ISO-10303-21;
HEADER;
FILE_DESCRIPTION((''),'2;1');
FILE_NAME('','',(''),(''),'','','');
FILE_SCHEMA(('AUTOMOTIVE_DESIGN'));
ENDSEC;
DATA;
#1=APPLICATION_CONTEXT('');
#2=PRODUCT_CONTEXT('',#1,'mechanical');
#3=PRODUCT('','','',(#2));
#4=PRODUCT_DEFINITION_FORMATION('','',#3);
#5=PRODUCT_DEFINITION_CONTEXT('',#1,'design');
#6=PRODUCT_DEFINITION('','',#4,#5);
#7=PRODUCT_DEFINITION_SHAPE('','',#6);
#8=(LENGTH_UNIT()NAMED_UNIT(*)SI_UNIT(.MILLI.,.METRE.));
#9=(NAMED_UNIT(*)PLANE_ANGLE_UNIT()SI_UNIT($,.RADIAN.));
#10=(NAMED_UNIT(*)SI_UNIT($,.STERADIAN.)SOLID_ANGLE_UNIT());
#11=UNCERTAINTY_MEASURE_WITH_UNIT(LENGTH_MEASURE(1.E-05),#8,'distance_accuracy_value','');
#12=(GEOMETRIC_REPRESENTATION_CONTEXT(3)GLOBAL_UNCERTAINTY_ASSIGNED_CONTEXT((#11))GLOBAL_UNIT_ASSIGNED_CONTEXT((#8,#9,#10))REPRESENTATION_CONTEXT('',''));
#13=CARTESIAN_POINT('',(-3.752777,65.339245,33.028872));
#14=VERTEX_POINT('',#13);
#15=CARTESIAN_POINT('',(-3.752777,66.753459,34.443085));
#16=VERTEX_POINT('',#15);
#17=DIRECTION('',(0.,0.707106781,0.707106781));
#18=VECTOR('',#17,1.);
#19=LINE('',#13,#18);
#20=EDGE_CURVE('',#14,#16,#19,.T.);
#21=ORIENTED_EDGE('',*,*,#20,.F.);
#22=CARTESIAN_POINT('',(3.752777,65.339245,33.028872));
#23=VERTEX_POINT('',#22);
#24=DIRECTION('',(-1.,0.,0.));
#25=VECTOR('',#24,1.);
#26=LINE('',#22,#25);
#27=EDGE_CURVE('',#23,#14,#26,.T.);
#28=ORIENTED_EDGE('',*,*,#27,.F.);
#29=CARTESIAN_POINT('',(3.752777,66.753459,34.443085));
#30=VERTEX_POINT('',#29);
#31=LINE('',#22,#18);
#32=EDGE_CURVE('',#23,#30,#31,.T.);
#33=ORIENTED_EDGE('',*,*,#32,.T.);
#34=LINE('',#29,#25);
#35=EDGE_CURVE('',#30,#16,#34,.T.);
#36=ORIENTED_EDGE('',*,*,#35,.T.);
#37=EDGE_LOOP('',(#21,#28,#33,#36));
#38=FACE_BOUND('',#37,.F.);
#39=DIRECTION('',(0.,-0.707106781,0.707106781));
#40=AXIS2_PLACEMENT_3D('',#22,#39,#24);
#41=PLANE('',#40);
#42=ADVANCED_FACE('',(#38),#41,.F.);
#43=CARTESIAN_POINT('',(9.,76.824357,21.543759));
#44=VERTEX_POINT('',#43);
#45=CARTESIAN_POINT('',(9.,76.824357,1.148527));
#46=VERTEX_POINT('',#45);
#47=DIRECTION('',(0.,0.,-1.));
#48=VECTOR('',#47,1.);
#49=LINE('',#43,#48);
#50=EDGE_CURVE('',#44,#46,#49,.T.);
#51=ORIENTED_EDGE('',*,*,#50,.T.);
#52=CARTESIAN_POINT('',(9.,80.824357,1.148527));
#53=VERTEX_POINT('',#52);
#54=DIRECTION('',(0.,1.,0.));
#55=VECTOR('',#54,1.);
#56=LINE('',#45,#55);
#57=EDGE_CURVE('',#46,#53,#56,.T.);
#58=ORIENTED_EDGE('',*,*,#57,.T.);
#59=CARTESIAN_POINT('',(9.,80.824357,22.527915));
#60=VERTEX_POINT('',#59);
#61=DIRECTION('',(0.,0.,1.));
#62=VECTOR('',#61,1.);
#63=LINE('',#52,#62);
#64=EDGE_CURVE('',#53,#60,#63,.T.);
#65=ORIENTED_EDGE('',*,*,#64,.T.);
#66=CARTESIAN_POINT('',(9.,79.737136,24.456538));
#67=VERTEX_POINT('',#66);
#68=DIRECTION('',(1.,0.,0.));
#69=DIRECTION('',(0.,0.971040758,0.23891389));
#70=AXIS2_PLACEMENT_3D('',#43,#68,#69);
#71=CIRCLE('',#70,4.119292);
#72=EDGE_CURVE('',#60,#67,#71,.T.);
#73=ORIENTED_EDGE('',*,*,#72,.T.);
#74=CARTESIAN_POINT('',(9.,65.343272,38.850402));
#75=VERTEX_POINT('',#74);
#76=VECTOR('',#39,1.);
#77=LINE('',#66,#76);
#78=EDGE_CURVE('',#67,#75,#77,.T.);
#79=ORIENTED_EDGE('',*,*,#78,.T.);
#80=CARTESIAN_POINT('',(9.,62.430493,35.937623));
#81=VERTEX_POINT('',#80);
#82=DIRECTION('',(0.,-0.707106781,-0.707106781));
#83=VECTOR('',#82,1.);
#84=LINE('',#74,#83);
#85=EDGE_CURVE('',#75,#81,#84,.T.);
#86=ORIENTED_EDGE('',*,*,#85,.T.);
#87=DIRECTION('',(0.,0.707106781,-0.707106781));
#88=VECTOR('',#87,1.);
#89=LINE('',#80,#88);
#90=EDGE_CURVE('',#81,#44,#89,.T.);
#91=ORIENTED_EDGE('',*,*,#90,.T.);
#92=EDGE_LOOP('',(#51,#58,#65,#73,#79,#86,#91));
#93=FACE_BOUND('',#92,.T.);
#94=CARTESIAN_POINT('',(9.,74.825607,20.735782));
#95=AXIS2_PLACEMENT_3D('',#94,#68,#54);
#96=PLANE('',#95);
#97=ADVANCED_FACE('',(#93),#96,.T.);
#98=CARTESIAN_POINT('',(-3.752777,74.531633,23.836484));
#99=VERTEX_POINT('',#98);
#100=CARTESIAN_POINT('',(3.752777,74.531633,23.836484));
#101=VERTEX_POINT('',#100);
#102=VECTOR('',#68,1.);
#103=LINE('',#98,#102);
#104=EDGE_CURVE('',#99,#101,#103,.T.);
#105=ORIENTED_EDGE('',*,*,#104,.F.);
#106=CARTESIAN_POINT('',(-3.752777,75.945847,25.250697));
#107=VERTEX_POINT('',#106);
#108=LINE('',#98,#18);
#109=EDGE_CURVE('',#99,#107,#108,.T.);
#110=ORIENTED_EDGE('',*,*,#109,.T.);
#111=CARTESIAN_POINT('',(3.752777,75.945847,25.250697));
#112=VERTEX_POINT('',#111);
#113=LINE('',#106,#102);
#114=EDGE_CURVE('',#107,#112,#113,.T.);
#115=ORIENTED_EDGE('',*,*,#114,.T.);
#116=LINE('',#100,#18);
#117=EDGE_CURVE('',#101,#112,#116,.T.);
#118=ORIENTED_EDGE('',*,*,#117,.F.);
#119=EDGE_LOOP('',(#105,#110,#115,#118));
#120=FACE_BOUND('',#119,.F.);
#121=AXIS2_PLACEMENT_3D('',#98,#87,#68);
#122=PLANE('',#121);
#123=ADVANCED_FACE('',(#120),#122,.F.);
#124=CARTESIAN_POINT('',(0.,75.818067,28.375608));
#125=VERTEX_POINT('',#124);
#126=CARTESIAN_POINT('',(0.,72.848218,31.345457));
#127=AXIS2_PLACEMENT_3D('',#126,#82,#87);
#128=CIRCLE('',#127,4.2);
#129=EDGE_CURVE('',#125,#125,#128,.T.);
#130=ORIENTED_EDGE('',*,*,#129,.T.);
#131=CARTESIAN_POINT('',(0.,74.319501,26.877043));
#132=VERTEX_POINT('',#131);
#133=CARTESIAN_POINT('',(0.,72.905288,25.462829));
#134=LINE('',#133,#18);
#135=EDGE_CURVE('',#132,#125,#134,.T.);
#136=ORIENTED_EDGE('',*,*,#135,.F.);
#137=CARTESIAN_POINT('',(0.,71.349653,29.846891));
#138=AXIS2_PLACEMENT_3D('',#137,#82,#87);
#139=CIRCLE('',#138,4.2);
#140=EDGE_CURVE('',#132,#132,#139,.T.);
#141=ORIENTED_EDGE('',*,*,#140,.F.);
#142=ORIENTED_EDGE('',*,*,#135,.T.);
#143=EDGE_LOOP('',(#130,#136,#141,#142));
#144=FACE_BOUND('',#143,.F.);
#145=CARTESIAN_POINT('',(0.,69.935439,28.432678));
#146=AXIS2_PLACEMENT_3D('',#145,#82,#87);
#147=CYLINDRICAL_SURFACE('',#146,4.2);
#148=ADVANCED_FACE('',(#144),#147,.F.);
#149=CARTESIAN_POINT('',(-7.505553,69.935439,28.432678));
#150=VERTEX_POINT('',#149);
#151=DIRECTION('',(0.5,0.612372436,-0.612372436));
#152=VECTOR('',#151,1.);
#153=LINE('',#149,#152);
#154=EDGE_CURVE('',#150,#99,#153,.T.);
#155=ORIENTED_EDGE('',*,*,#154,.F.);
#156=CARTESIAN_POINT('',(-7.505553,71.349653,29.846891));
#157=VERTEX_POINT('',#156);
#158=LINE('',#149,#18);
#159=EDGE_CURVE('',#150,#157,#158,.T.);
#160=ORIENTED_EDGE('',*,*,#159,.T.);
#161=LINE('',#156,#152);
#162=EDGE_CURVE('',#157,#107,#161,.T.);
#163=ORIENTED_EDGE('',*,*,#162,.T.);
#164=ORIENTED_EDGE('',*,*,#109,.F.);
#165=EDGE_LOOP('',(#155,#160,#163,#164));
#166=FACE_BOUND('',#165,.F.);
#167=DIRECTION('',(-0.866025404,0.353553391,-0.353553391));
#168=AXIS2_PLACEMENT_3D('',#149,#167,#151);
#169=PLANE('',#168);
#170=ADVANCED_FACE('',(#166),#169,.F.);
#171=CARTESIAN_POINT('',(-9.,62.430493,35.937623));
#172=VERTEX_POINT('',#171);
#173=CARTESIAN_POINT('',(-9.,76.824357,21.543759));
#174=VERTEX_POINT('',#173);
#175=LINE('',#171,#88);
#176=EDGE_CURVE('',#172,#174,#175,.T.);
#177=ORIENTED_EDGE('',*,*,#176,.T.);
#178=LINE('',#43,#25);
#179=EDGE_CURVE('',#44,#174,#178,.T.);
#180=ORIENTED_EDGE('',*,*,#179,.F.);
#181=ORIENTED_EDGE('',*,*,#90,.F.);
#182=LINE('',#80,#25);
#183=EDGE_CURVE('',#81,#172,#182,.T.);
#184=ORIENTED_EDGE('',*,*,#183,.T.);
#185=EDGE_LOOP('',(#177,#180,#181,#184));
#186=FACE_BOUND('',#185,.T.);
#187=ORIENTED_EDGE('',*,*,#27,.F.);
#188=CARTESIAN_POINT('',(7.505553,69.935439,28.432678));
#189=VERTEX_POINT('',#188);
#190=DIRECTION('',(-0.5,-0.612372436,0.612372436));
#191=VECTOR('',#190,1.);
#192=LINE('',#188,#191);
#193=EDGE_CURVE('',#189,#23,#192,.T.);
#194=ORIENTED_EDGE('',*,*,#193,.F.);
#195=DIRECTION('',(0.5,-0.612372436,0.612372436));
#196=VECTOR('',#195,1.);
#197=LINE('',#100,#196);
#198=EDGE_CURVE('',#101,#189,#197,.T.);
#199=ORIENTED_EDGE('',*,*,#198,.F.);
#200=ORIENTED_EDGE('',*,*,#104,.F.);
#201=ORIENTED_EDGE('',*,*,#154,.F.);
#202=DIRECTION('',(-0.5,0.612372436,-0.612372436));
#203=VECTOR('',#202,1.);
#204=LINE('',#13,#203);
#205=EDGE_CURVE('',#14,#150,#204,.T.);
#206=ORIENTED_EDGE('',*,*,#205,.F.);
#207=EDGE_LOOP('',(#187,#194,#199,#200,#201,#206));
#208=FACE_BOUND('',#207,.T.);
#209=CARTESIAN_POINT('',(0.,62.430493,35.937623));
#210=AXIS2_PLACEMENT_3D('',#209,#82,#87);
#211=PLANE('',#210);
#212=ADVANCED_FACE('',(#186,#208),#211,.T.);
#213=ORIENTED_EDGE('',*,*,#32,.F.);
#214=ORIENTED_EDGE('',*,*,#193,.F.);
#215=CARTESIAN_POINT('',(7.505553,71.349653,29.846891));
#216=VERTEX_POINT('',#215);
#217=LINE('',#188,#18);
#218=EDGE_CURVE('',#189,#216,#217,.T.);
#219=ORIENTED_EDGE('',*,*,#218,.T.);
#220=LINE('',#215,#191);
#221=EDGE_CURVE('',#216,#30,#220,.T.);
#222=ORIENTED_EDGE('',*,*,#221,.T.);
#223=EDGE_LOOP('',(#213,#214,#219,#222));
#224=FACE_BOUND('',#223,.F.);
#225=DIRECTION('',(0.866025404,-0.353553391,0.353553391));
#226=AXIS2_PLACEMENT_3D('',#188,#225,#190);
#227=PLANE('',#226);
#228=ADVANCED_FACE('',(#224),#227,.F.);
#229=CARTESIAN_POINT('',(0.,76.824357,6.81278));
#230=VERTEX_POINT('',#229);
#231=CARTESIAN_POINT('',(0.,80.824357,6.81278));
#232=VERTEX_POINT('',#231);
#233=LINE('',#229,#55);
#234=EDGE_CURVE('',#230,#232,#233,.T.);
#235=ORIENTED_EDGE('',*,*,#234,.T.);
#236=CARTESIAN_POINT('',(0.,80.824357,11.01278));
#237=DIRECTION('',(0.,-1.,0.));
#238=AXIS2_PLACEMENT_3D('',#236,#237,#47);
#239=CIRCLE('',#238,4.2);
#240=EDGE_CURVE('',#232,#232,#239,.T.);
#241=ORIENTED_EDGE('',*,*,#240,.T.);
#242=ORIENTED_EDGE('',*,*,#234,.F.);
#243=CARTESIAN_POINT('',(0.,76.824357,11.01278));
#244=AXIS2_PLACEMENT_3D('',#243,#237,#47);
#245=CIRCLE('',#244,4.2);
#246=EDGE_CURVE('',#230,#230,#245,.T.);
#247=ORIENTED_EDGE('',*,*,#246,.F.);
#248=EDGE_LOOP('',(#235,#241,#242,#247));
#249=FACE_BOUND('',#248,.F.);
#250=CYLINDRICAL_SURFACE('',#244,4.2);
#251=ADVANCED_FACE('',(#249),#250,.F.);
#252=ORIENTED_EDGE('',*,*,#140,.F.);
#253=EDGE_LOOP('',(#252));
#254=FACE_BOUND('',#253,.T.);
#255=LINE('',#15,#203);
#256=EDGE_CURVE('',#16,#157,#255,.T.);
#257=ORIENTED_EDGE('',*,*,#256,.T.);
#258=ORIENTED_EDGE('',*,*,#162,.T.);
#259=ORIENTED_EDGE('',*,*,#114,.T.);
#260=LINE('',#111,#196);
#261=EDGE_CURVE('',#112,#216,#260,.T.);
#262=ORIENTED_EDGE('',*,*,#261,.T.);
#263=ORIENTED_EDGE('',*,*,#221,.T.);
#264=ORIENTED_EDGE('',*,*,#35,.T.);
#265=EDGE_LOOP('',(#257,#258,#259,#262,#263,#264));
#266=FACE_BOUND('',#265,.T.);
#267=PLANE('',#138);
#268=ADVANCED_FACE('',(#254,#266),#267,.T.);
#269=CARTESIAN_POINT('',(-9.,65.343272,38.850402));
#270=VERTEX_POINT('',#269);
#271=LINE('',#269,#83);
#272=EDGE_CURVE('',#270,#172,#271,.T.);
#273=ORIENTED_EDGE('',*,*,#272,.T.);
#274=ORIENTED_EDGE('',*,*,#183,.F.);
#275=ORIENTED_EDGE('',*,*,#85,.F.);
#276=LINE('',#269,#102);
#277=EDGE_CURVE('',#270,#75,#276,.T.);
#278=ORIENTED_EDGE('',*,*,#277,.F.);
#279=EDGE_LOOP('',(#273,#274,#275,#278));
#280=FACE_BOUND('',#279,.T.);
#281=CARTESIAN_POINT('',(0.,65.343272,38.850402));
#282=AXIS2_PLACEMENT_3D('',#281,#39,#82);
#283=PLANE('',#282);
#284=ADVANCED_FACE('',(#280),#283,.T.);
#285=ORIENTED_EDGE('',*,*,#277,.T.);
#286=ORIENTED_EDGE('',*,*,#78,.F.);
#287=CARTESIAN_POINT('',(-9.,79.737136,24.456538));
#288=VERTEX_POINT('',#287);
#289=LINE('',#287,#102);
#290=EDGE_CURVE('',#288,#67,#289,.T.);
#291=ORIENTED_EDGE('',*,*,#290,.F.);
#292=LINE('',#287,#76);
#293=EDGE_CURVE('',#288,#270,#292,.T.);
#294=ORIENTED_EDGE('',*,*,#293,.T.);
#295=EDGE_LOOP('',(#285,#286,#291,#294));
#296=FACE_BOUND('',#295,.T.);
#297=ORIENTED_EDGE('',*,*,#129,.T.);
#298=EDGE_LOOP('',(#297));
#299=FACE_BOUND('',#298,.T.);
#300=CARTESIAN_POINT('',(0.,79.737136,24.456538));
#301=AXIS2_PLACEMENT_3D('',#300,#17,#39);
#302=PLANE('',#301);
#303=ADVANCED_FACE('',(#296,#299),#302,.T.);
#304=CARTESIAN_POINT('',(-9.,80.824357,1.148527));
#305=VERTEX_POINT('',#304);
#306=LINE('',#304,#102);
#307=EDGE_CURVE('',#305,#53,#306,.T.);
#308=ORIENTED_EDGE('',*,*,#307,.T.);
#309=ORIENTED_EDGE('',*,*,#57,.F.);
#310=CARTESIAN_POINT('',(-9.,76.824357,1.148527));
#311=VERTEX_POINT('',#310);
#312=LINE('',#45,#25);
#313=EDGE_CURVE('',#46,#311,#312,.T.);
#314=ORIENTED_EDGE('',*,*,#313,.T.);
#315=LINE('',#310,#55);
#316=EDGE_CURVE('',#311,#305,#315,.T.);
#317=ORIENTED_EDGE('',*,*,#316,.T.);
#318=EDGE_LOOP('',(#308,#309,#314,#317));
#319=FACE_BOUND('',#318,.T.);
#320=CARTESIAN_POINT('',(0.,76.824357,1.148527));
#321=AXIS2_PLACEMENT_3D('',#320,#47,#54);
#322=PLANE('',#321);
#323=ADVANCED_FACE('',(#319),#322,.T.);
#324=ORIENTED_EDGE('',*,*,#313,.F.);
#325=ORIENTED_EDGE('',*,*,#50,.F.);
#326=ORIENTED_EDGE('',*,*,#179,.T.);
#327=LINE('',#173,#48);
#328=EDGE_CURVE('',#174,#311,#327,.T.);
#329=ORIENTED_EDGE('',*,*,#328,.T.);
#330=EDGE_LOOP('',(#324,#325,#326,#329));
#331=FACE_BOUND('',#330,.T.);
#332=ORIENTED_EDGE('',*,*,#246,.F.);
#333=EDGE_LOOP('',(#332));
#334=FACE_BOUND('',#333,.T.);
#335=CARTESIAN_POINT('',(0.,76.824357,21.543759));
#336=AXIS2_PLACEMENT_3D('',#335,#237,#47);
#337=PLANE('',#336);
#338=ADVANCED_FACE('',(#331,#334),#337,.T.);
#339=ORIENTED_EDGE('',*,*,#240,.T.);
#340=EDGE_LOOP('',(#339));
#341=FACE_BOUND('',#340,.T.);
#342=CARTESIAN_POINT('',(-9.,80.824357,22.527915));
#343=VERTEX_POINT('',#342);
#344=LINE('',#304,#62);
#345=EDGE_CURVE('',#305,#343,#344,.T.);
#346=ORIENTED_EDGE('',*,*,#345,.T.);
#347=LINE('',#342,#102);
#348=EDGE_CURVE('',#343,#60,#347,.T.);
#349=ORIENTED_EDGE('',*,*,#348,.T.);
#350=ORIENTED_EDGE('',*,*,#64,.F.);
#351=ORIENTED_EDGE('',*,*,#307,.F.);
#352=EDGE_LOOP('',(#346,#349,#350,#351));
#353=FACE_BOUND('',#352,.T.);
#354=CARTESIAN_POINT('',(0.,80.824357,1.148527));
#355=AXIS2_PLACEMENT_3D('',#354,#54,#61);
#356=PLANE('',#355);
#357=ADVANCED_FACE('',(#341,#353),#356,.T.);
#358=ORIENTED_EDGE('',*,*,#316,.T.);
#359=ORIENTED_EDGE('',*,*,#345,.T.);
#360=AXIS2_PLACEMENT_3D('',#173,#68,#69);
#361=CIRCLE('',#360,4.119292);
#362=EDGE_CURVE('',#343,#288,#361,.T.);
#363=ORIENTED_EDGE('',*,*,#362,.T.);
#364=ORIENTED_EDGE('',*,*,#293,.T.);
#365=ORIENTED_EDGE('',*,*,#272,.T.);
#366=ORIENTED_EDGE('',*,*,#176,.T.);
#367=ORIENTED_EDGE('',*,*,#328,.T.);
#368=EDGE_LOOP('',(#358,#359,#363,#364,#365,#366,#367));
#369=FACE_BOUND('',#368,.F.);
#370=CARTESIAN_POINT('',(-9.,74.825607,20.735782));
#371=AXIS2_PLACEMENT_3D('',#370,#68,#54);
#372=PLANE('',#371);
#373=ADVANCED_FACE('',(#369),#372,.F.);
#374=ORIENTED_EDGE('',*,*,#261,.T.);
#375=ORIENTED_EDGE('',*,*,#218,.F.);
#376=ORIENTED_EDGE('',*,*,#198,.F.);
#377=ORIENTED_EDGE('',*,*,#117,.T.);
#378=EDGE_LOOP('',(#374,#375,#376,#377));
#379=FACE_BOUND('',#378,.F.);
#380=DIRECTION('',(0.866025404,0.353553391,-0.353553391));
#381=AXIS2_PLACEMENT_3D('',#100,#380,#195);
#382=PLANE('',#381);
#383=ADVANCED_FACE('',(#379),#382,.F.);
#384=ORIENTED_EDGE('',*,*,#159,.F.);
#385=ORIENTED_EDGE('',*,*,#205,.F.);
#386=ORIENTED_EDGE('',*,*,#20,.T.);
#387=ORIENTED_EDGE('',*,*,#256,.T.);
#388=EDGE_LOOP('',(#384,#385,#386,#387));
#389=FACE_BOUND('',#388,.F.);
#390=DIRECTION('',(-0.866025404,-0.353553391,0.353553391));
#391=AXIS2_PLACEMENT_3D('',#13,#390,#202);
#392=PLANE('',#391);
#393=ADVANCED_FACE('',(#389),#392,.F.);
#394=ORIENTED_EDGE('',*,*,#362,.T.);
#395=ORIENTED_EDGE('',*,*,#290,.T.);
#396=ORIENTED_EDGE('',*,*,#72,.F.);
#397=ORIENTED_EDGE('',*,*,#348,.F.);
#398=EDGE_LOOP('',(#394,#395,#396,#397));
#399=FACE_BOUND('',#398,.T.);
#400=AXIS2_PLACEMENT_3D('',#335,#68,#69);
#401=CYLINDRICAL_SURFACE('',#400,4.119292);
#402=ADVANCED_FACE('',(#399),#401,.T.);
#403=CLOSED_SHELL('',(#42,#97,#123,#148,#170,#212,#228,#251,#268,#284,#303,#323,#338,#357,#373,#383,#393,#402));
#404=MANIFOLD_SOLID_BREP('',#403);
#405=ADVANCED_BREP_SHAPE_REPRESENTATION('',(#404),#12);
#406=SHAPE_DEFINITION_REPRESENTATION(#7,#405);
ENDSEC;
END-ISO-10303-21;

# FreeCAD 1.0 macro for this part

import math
import FreeCAD as App
import Part
import Sketcher
Q = App.Units.Quantity


def add_polygon(sketch, points):
    """Adds a closed chain of lines whose ends are joined by coincident constraints."""
    first, n = sketch.GeometryCount, len(points)
    for a, b in zip(points, points[1:] + points[:1]):
        sketch.addGeometry(Part.LineSegment(App.Vector(*a, 0), App.Vector(*b, 0)), False)
    for i in range(n):
        sketch.addConstraint(Sketcher.Constraint("Coincident", first + i, 2, first + (i + 1) % n, 1))

doc = App.newDocument("Part")
body = doc.addObject("PartDesign::Body", "Body")

sketch1 = body.newObject("Sketcher::SketchObject", "Sketch")
sketch1.AttachmentSupport = (doc.getObject("YZ_Plane"), [""])
sketch1.MapMode = "FlatFace"
sketch1.addGeometry([
    Part.LineSegment(App.Vector(76.824357, 1.148527, 0), App.Vector(80.824357, 1.148527, 0)),
    Part.LineSegment(App.Vector(80.824357, 1.148527, 0), App.Vector(80.824357, 22.527915, 0)),
    Part.ArcOfCircle(Part.Circle(App.Vector(76.824357, 21.543759, 0), App.Vector(0, 0, 1), 4.119292), math.radians(13.822446), math.radians(45)),
    Part.LineSegment(App.Vector(79.737136, 24.456538, 0), App.Vector(65.343272, 38.850402, 0)),
    Part.LineSegment(App.Vector(65.343272, 38.850402, 0), App.Vector(62.430493, 35.937623, 0)),
    Part.LineSegment(App.Vector(62.430493, 35.937623, 0), App.Vector(76.824357, 21.543759, 0)),
    Part.LineSegment(App.Vector(76.824357, 21.543759, 0), App.Vector(76.824357, 1.148527, 0)),
], False)
sketch1.addConstraint([
    Sketcher.Constraint("Coincident", 0, 2, 1, 1),
    Sketcher.Constraint("Coincident", 1, 2, 2, 1),
    Sketcher.Constraint("Tangent", 2, 2, 3, 1),
    Sketcher.Constraint("Coincident", 3, 2, 4, 1),
    Sketcher.Constraint("Coincident", 4, 2, 5, 1),
    Sketcher.Constraint("Coincident", 5, 2, 6, 1),
    Sketcher.Constraint("Coincident", 6, 2, 0, 1),
    Sketcher.Constraint("Horizontal", 0),
    Sketcher.Constraint("Vertical", 1),
    Sketcher.Constraint("Vertical", 6),
    Sketcher.Constraint("Coincident", 5, 2, 2, 3),
    Sketcher.Constraint("Perpendicular", 3, 4),
    Sketcher.Constraint("Perpendicular", 4, 5),
    Sketcher.Constraint("DistanceX", 0, 1, 0, 2, Q("4 mm")),
    Sketcher.Constraint("Angle", 3, Q("135 deg")),
    Sketcher.Constraint("Radius", 2, Q("4.119292 mm")),
    Sketcher.Constraint("DistanceY", 1, 1, 1, 2, Q("21.379388 mm")),
    Sketcher.Constraint("DistanceY", -1, 1, 2, 3, Q("21.543759 mm")),
    Sketcher.Constraint("DistanceY", 1, 2, 4, 2, Q("13.409708 mm")),
    Sketcher.Constraint("DistanceX", -1, 1, 2, 3, Q("76.824357 mm")),
])
pad1 = body.newObject("PartDesign::Pad", "Pad")
pad1.Profile = sketch1
pad1.Length = 18
pad1.Midplane = True

sketch2 = body.newObject("Sketcher::SketchObject", "Sketch001")
sketch2.AttachmentSupport = (doc.getObject("XZ_Plane"), [""])
sketch2.MapMode = "FlatFace"
sketch2.AttachmentOffset = App.Placement(App.Vector(0, 0, -76.824357), App.Rotation())
sketch2.addGeometry(Part.Circle(App.Vector(0, 11.01278, 0), App.Vector(0, 0, 1), 4.2), False)
sketch2.addConstraint([
    Sketcher.Constraint("PointOnObject", 0, 3, -2),
    Sketcher.Constraint("Diameter", 0, Q("8.4 mm")),
    Sketcher.Constraint("DistanceY", -1, 1, 0, 3, Q("11.01278 mm")),
])
pocket1 = body.newObject("PartDesign::Pocket", "Pocket")
pocket1.Profile = sketch2
pocket1.Length = 5

sketch3 = body.newObject("Sketcher::SketchObject", "Sketch002")
sketch3.Placement = App.Placement(App.Vector(0, 49.184058, 49.184058), App.Rotation(App.Vector(0, 0.707106781, -0.707106781), App.Vector(0.999999999, 0, 0), App.Vector(0, -0.707106781, -0.707106781), "ZXY"))
sketch3.addGeometry(Part.Circle(App.Vector(29.346884, 0, 0), App.Vector(0, 0, 1), 4.2), False)
sketch3.addConstraint([
    Sketcher.Constraint("PointOnObject", 0, 3, -1),
    Sketcher.Constraint("Diameter", 0, Q("8.4 mm")),
    Sketcher.Constraint("DistanceX", -1, 1, 0, 3, Q("29.346884 mm")),
])
pocket2 = body.newObject("PartDesign::Pocket", "Pocket001")
pocket2.Profile = sketch3
pocket2.Length = 5

sketch4 = body.newObject("Sketcher::SketchObject", "Sketch003")
sketch4.Placement = App.Placement(App.Vector(0, 49.184058, 49.184058), App.Rotation(App.Vector(0, 0.707106781, -0.707106781), App.Vector(0.999999999, 0, 0), App.Vector(0, -0.707106781, -0.707106781), "ZXY"))
add_polygon(sketch4, [(22.846884, 3.752777), (22.846884, -3.752777), (29.346884, -7.505553), (35.846884, -3.752777), (35.846884, 3.752777), (29.346884, 7.505553)])
sketch4.addConstraint([
    Sketcher.Constraint("Vertical", 0),
    Sketcher.Constraint("Vertical", 3),
    Sketcher.Constraint("Symmetric", 1, 2, 4, 2, -1),
    Sketcher.Constraint("Parallel", 1, 4),
    Sketcher.Constraint("Parallel", 2, 5),
    Sketcher.Constraint("Horizontal", 0, 2, 2, 2),
    Sketcher.Constraint("Horizontal", 3, 2, 5, 2),
    Sketcher.Constraint("Angle", 1, Q("-30 deg")),
    Sketcher.Constraint("DistanceX", 0, 2, 2, 2, Q("13 mm")),
    Sketcher.Constraint("DistanceY", 0, 2, 0, 1, Q("7.505553 mm")),
    Sketcher.Constraint("DistanceX", -1, 1, 0, 2, Q("22.846884 mm")),
])
pocket3 = body.newObject("PartDesign::Pocket", "Pocket002")
pocket3.Profile = sketch4
pocket3.Length = 2

doc.recompute()
